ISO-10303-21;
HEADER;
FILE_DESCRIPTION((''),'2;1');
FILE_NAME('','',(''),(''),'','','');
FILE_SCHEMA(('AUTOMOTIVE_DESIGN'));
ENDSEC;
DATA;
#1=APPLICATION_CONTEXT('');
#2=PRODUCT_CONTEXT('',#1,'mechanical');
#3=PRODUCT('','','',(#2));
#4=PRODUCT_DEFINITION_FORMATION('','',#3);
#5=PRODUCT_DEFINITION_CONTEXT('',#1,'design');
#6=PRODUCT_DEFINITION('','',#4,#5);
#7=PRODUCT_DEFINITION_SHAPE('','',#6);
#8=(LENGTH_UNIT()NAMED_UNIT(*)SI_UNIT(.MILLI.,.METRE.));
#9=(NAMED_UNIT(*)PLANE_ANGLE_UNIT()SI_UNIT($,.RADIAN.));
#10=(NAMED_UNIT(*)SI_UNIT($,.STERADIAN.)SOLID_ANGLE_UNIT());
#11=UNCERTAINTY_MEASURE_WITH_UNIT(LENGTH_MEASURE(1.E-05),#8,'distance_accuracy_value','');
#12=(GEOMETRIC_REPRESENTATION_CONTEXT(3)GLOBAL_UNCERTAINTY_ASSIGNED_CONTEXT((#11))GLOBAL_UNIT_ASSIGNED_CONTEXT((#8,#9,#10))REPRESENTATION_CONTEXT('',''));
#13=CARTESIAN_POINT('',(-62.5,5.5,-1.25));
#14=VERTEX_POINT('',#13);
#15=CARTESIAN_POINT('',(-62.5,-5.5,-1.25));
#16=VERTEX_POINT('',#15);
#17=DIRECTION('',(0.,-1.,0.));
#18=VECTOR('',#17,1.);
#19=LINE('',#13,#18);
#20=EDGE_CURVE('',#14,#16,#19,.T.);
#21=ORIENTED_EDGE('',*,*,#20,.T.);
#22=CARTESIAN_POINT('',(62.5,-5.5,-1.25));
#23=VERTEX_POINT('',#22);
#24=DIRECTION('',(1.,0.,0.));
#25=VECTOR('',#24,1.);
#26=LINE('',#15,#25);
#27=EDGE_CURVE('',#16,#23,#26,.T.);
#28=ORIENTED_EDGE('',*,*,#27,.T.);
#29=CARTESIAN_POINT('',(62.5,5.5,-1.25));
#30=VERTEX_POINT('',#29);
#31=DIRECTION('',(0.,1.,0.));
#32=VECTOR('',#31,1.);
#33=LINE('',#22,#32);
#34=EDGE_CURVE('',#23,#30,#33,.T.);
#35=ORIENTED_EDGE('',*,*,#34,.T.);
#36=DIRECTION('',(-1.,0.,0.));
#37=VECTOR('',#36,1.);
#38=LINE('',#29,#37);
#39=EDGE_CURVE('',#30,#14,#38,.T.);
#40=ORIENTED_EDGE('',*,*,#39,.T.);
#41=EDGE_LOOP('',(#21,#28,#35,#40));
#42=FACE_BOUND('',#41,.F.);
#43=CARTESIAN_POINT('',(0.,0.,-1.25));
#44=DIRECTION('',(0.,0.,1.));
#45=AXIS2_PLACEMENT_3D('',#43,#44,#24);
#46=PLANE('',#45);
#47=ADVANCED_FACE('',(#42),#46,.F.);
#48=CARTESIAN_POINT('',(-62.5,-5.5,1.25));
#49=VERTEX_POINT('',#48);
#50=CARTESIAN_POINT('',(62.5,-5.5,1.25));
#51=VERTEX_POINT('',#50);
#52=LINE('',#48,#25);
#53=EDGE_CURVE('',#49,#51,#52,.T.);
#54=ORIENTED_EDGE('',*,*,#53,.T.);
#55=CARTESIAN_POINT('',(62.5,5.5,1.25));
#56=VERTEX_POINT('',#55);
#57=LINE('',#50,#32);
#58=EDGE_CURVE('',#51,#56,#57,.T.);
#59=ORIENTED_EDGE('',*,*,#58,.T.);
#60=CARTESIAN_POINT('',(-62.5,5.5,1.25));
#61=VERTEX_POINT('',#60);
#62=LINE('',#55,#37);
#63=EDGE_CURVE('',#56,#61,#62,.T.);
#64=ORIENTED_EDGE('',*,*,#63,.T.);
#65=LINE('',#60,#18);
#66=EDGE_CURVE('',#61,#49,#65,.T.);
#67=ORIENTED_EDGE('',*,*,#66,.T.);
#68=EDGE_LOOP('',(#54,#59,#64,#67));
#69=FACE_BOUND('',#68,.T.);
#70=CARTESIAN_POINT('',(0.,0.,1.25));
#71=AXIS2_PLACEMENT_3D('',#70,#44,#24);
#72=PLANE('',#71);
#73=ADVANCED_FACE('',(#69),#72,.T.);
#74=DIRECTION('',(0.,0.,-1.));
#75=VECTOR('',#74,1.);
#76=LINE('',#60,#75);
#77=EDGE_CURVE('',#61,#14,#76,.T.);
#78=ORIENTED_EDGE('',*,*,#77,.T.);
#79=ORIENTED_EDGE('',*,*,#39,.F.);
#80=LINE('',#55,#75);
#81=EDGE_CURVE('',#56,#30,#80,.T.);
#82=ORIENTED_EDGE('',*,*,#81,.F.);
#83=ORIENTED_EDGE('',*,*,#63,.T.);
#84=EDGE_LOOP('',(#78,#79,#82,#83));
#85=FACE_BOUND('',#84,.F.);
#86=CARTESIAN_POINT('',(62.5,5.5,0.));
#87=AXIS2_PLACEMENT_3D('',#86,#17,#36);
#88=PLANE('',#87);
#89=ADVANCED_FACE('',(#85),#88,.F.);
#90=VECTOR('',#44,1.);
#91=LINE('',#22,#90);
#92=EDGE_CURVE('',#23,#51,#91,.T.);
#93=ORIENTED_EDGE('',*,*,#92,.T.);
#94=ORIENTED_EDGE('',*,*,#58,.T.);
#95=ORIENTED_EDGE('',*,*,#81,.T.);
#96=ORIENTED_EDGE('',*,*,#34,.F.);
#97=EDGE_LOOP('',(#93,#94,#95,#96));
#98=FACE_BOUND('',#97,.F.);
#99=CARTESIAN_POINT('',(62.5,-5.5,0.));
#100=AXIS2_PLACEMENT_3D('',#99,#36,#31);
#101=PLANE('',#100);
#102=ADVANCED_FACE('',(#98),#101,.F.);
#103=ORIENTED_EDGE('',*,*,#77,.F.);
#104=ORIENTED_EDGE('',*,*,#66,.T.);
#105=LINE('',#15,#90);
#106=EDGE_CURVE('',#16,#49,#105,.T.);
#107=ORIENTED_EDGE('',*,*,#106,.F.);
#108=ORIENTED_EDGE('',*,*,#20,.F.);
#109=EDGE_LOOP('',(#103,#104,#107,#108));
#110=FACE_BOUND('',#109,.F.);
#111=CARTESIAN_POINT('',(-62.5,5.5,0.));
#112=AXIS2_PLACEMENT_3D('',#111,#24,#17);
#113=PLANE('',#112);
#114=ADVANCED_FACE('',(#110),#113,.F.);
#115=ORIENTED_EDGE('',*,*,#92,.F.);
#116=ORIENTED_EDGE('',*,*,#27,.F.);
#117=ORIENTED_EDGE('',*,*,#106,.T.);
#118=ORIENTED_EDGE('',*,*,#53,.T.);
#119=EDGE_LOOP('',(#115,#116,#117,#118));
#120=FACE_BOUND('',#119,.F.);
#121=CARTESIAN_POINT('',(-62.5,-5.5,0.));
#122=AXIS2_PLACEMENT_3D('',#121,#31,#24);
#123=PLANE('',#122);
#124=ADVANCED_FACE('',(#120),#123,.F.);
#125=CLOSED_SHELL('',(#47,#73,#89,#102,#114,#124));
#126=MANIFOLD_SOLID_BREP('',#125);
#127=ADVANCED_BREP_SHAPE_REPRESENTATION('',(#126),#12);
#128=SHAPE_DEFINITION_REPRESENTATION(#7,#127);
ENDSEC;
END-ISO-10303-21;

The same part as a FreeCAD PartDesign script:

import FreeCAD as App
import Part
import Sketcher
from FreeCAD import Vector

doc = App.newDocument("Part")
params = doc.addObject("Spreadsheet::Sheet", "Params")
for row, (alias, value) in enumerate([
    ("sketch1_width", "125 mm"),
    ("sketch1_height", "11 mm"),
    ("pad1_length", "2.5 mm"),
], start=1):
    params.set(f"A{row}", alias)
    params.set(f"B{row}", "=" + value)
    params.setAlias(f"B{row}", alias)

body = doc.addObject("PartDesign::Body", "Body")

sketch1 = body.newObject("Sketcher::SketchObject", "Sketch")
sketch1.AttachmentSupport = (doc.getObject("XY_Plane"), [""])
sketch1.MapMode = "FlatFace"
sketch1.addGeometry(Part.LineSegment(Vector(-62.5, 5.5, 0), Vector(-62.5, -5.5, 0)), False)
sketch1.addGeometry(Part.LineSegment(Vector(-62.5, -5.5, 0), Vector(62.5, -5.5, 0)), False)
sketch1.addGeometry(Part.LineSegment(Vector(62.5, -5.5, 0), Vector(62.5, 5.5, 0)), False)
sketch1.addGeometry(Part.LineSegment(Vector(62.5, 5.5, 0), Vector(-62.5, 5.5, 0)), False)
sketch1.addConstraint(Sketcher.Constraint("Coincident", 0, 2, 1, 1))
sketch1.addConstraint(Sketcher.Constraint("Coincident", 1, 2, 2, 1))
sketch1.addConstraint(Sketcher.Constraint("Coincident", 2, 2, 3, 1))
sketch1.addConstraint(Sketcher.Constraint("Coincident", 3, 2, 0, 1))
sketch1.addConstraint(Sketcher.Constraint("Vertical", 0))
sketch1.addConstraint(Sketcher.Constraint("Horizontal", 1))
sketch1.addConstraint(Sketcher.Constraint("Vertical", 2))
sketch1.addConstraint(Sketcher.Constraint("Horizontal", 3))
sketch1.addConstraint(Sketcher.Constraint("Symmetric", 0, 2, 2, 2, -1, 1))
sketch1.addConstraint(Sketcher.Constraint("DistanceX", 1, 1, 1, 2, 125.0))
sketch1.addConstraint(Sketcher.Constraint("DistanceY", 0, 2, 0, 1, 11.0))
sketch1.setExpression("Constraints[9]", "Params.sketch1_width")
sketch1.setExpression("Constraints[10]", "Params.sketch1_height")
pad1 = body.newObject("PartDesign::Pad", "Pad")
pad1.Profile = sketch1
pad1.setExpression("Length", "Params.pad1_length")
pad1.Midplane = True

doc.recompute()
